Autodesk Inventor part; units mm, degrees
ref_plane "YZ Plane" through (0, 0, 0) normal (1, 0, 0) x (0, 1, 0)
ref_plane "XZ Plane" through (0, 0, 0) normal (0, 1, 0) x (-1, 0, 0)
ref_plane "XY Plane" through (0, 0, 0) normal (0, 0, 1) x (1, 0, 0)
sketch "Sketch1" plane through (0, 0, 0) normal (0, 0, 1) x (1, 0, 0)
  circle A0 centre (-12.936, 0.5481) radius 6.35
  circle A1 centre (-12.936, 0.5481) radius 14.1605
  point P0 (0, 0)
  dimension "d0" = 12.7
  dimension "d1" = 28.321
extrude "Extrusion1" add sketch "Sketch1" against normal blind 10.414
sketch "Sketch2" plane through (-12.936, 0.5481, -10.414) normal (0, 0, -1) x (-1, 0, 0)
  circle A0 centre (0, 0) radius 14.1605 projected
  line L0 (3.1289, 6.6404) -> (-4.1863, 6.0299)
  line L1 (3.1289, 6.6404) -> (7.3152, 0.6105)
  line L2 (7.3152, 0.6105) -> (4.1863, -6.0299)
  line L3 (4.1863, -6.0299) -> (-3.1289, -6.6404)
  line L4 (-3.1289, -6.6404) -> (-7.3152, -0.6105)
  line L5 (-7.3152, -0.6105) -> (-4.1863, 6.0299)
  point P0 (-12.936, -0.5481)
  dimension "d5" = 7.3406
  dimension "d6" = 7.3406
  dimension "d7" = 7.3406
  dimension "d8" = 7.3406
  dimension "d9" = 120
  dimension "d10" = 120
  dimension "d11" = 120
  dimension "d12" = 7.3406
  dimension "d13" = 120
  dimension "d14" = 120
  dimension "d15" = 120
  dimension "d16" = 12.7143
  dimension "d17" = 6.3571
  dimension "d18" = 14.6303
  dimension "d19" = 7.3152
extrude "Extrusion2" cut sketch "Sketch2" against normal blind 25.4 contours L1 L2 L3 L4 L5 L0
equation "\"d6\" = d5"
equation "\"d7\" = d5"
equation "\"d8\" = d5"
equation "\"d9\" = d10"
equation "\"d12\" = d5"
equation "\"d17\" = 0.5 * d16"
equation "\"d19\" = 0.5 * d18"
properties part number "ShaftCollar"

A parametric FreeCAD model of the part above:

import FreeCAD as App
import Part
import Sketcher
from FreeCAD import Vector
Q = App.Units.Quantity


def add_polygon(sketch, points):
    """Adds a closed chain of lines whose ends are joined by coincident constraints."""
    first, n = sketch.GeometryCount, len(points)
    for a, b in zip(points, points[1:] + points[:1]):
        sketch.addGeometry(Part.LineSegment(App.Vector(*a, 0), App.Vector(*b, 0)), False)
    for i in range(n):
        sketch.addConstraint(Sketcher.Constraint("Coincident", first + i, 2, first + (i + 1) % n, 1))

doc = App.newDocument("Part")
body = doc.addObject("PartDesign::Body", "Body")

# Sketch on XY plane
sketch1 = doc.addObject("Sketcher::SketchObject", "Sketch")
body.addObject(sketch1)
sketch1.AttachmentSupport = (doc.XY_Plane, [""])
sketch1.MapMode = "FlatFace"
sketch1.addGeometry(Part.Circle(Vector(-12.936, 0.5481, 0), Vector(0, 0, 1), 14.1605), False)
sketch1.addGeometry(Part.Circle(Vector(-12.936, 0.5481, 0), Vector(0, 0, 1), 6.35), False)
sketch1.addConstraint(Sketcher.Constraint("Coincident", 1, 3, 0, 3))
sketch1.addConstraint(Sketcher.Constraint("Diameter", 1, Q("0.5 in")))
sketch1.addConstraint(Sketcher.Constraint("Diameter", 0, Q("1.115 in")))
sketch1.addConstraint(Sketcher.Constraint("DistanceX", 0, 3, -1, 1, Q("0.5093 in")))
sketch1.addConstraint(Sketcher.Constraint("DistanceY", -1, 1, 0, 3, Q("0.548 mm")))
pad1 = doc.addObject("PartDesign::Pad", "Pad")
body.addObject(pad1)
pad1.Profile = sketch1
pad1.Length = Q("0.41 in")
pad1.Reversed = True

# Sketch on XY plane
sketch2 = doc.addObject("Sketcher::SketchObject", "Sketch001")
body.addObject(sketch2)
sketch2.AttachmentSupport = (doc.XY_Plane, [""])
sketch2.MapMode = "FlatFace"
sketch2.AttachmentOffset = App.Placement(Vector(0, 0, -0.41 * 25.4), App.Rotation())
add_polygon(sketch2, [(-20.2512, 1.1586), (-16.0649, 7.1885), (-8.7497, 6.578), (-5.6208, -0.0624), (-9.8071, -6.0923), (-17.1223, -5.4818)])  # lines 0-5
sketch2.addConstraint(Sketcher.Constraint("Parallel", 0, 3))
sketch2.addConstraint(Sketcher.Constraint("Parallel", 1, 4))
sketch2.addConstraint(Sketcher.Constraint("Parallel", 2, 5))
sketch2.addConstraint(Sketcher.Constraint("Equal", 0, 1))
sketch2.addConstraint(Sketcher.Constraint("Equal", 1, 2))
sketch2.addConstraint(Sketcher.Constraint("Equal", 2, 3))
sketch2.addConstraint(Sketcher.Constraint("Distance", 0, Q("0.289 in")))
sketch2.addConstraint(Sketcher.Constraint("DistanceX", 0, 2, 1, 2, Q("0.288 in")))
sketch2.addConstraint(Sketcher.Constraint("DistanceX", 5, 2, 2, 2, Q("0.576 in")))
sketch2.addConstraint(Sketcher.Constraint("Angle", 0, Q("55.2294 deg")))
sketch2.addConstraint(Sketcher.Constraint("DistanceY", -1, 1, 0, 2, Q("0.283 in")))
sketch2.addConstraint(Sketcher.Constraint("DistanceX", 2, 2, -1, 1, Q("0.2213 in")))
pocket1 = doc.addObject("PartDesign::Pocket", "Pocket")
body.addObject(pocket1)
pocket1.Profile = sketch2
pocket1.Length = Q("1 in")
pocket1.Reversed = True

doc.recompute()
